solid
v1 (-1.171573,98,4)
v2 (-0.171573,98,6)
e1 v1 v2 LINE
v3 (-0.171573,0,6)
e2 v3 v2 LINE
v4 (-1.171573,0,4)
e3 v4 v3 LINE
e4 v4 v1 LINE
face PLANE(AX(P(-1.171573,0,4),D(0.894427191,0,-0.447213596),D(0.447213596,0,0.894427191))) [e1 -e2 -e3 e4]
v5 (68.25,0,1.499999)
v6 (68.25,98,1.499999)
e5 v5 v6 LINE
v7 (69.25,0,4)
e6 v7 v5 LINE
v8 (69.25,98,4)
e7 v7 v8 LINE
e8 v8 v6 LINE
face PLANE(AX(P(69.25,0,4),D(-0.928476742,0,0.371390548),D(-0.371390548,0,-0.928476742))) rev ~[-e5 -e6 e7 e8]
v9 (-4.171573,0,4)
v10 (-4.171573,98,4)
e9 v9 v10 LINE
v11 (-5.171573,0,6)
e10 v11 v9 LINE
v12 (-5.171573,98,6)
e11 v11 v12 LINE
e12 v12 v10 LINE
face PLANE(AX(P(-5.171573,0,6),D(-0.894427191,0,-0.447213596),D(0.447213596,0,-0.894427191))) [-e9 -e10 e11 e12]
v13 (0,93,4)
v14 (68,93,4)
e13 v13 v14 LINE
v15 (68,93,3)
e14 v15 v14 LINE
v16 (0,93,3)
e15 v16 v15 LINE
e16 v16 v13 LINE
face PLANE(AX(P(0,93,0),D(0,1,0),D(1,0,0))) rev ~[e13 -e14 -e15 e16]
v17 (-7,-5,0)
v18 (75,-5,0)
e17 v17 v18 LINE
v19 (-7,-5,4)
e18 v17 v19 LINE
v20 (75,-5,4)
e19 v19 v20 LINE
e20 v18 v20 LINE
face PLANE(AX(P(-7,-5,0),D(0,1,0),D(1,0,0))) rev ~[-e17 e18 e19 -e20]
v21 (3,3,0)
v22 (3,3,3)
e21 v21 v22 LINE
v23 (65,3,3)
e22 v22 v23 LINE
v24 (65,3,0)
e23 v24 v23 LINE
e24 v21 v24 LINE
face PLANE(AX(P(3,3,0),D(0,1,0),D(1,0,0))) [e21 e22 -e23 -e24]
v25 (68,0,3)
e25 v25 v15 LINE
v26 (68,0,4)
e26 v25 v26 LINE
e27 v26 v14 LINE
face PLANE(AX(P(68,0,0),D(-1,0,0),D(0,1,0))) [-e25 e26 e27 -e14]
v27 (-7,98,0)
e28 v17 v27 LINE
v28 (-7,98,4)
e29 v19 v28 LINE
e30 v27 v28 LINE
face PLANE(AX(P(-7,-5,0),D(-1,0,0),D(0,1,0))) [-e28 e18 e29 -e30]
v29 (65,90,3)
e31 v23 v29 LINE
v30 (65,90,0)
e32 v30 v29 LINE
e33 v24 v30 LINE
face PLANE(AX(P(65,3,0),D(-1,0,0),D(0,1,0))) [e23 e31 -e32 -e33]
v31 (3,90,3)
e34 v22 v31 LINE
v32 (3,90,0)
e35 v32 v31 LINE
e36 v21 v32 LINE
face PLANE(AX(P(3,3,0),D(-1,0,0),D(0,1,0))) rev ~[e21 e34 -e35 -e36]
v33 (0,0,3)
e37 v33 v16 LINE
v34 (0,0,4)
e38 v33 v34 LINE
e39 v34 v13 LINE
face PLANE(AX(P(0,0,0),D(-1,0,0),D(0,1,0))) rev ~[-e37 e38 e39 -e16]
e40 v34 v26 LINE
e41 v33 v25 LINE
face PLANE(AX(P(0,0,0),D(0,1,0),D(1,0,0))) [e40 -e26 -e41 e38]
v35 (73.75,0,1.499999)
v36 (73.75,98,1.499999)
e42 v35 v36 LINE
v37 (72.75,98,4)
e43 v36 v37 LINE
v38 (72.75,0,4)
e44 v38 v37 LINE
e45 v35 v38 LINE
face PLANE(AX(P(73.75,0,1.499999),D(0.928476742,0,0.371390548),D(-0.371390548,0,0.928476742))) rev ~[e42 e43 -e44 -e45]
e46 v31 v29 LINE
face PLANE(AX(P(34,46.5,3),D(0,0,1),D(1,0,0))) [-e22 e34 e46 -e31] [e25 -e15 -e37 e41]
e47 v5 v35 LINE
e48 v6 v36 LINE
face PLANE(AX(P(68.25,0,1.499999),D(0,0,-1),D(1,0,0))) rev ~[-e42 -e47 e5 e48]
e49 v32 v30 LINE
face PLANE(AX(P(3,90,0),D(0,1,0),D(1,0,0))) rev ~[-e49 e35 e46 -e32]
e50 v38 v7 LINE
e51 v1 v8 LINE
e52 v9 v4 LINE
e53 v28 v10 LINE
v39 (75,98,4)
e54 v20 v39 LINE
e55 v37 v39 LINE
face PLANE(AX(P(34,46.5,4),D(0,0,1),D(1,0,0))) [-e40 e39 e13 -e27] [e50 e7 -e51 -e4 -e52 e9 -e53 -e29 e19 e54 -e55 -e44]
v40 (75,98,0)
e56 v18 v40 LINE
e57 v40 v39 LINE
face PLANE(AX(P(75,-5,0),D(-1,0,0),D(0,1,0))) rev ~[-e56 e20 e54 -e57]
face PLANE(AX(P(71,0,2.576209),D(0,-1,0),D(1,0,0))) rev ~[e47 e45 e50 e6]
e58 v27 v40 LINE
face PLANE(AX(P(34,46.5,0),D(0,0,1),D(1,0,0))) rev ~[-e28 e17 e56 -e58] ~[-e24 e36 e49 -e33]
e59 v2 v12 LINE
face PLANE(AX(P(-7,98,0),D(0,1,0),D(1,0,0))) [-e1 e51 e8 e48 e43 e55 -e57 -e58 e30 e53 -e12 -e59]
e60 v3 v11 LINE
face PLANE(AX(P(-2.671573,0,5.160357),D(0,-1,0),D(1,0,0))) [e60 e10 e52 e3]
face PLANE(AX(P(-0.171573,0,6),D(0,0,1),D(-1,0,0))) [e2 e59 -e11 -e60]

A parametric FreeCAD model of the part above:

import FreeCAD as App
import Part
import Sketcher
from FreeCAD import Vector
Q = App.Units.Quantity

doc = App.newDocument("Part")
body = doc.addObject("PartDesign::Body", "Body")

sketch1 = doc.addObject("Sketcher::SketchObject", "Sketch")
body.addObject(sketch1)
sketch1.AttachmentSupport = (doc.XY_Plane, [""])
sketch1.MapMode = "FlatFace"
sketch1.addGeometry(Part.LineSegment(Vector(0, 93, 0), Vector(0, 0, 0)), False)
sketch1.addGeometry(Part.LineSegment(Vector(0, 0, 0), Vector(68, 0, 0)), False)
sketch1.addGeometry(Part.LineSegment(Vector(68, 0, 0), Vector(68, 93, 0)), False)
sketch1.addGeometry(Part.LineSegment(Vector(68, 93, 0), Vector(0, 93, 0)), False)
sketch1.addGeometry(Part.LineSegment(Vector(65, 3, 0), Vector(3, 3, 0)), False)
sketch1.addGeometry(Part.LineSegment(Vector(3, 3, 0), Vector(3, 90, 0)), False)
sketch1.addGeometry(Part.LineSegment(Vector(3, 90, 0), Vector(65, 90, 0)), False)
sketch1.addGeometry(Part.LineSegment(Vector(65, 90, 0), Vector(65, 3, 0)), False)
sketch1.addConstraint(Sketcher.Constraint("Coincident", 0, 2, 1, 1))
sketch1.addConstraint(Sketcher.Constraint("Coincident", 1, 2, 2, 1))
sketch1.addConstraint(Sketcher.Constraint("Coincident", 2, 2, 3, 1))
sketch1.addConstraint(Sketcher.Constraint("Coincident", 3, 2, 0, 1))
sketch1.addConstraint(Sketcher.Constraint("Coincident", 4, 2, 5, 1))
sketch1.addConstraint(Sketcher.Constraint("Coincident", 5, 2, 6, 1))
sketch1.addConstraint(Sketcher.Constraint("Coincident", 6, 2, 7, 1))
sketch1.addConstraint(Sketcher.Constraint("Coincident", 7, 2, 4, 1))
sketch1.addConstraint(Sketcher.Constraint("Vertical", 0))
sketch1.addConstraint(Sketcher.Constraint("Horizontal", 1))
sketch1.addConstraint(Sketcher.Constraint("Vertical", 2))
sketch1.addConstraint(Sketcher.Constraint("Horizontal", 3))
sketch1.addConstraint(Sketcher.Constraint("Horizontal", 4))
sketch1.addConstraint(Sketcher.Constraint("Vertical", 5))
sketch1.addConstraint(Sketcher.Constraint("Horizontal", 6))
sketch1.addConstraint(Sketcher.Constraint("Vertical", 7))
sketch1.addConstraint(Sketcher.Constraint("Coincident", 0, 2, -1, 1))
sketch1.addConstraint(Sketcher.Constraint("DistanceX", 1, 1, 1, 2, Q("68 mm")))
sketch1.addConstraint(Sketcher.Constraint("DistanceX", 4, 2, 4, 1, Q("62 mm")))
sketch1.addConstraint(Sketcher.Constraint("DistanceY", 0, 2, 0, 1, Q("93 mm")))
sketch1.addConstraint(Sketcher.Constraint("DistanceY", 5, 1, 5, 2, Q("87 mm")))
sketch1.addConstraint(Sketcher.Constraint("DistanceX", -1, 1, 4, 2, Q("3 mm")))
sketch1.addConstraint(Sketcher.Constraint("DistanceY", -1, 1, 4, 2, Q("3 mm")))
pad1 = doc.addObject("PartDesign::Pad", "Pad")
body.addObject(pad1)
pad1.Profile = sketch1
pad1.Length = 3

sketch2 = doc.addObject("Sketcher::SketchObject", "Sketch001")
body.addObject(sketch2)
sketch2.AttachmentSupport = (doc.XY_Plane, [""])
sketch2.MapMode = "FlatFace"
sketch2.addGeometry(Part.LineSegment(Vector(-7, 98, 0), Vector(-7, -5, 0)), False)
sketch2.addGeometry(Part.LineSegment(Vector(-7, -5, 0), Vector(75, -5, 0)), False)
sketch2.addGeometry(Part.LineSegment(Vector(75, -5, 0), Vector(75, 98, 0)), False)
sketch2.addGeometry(Part.LineSegment(Vector(75, 98, 0), Vector(-7, 98, 0)), False)
sketch2.addGeometry(Part.LineSegment(Vector(68, 0, 0), Vector(0, 0, 0)), False)
sketch2.addGeometry(Part.LineSegment(Vector(0, 0, 0), Vector(0, 93, 0)), False)
sketch2.addGeometry(Part.LineSegment(Vector(0, 93, 0), Vector(68, 93, 0)), False)
sketch2.addGeometry(Part.LineSegment(Vector(68, 93, 0), Vector(68, 0, 0)), False)
sketch2.addConstraint(Sketcher.Constraint("Coincident", 0, 2, 1, 1))
sketch2.addConstraint(Sketcher.Constraint("Coincident", 1, 2, 2, 1))
sketch2.addConstraint(Sketcher.Constraint("Coincident", 2, 2, 3, 1))
sketch2.addConstraint(Sketcher.Constraint("Coincident", 3, 2, 0, 1))
sketch2.addConstraint(Sketcher.Constraint("Coincident", 4, 2, 5, 1))
sketch2.addConstraint(Sketcher.Constraint("Coincident", 5, 2, 6, 1))
sketch2.addConstraint(Sketcher.Constraint("Coincident", 6, 2, 7, 1))
sketch2.addConstraint(Sketcher.Constraint("Coincident", 7, 2, 4, 1))
sketch2.addConstraint(Sketcher.Constraint("Vertical", 0))
sketch2.addConstraint(Sketcher.Constraint("Horizontal", 1))
sketch2.addConstraint(Sketcher.Constraint("Vertical", 2))
sketch2.addConstraint(Sketcher.Constraint("Horizontal", 3))
sketch2.addConstraint(Sketcher.Constraint("Horizontal", 4))
sketch2.addConstraint(Sketcher.Constraint("Vertical", 5))
sketch2.addConstraint(Sketcher.Constraint("Horizontal", 6))
sketch2.addConstraint(Sketcher.Constraint("Vertical", 7))
sketch2.addConstraint(Sketcher.Constraint("Coincident", 4, 2, -1, 1))
sketch2.addConstraint(Sketcher.Constraint("DistanceX", 1, 1, 1, 2, Q("82 mm")))
sketch2.addConstraint(Sketcher.Constraint("DistanceX", 4, 2, 4, 1, Q("68 mm")))
sketch2.addConstraint(Sketcher.Constraint("DistanceY", 0, 2, 0, 1, Q("103 mm")))
sketch2.addConstraint(Sketcher.Constraint("DistanceY", 5, 1, 5, 2, Q("93 mm")))
sketch2.addConstraint(Sketcher.Constraint("DistanceX", 0, 2, -1, 1, Q("7 mm")))
sketch2.addConstraint(Sketcher.Constraint("DistanceY", 0, 2, -1, 1, Q("5 mm")))
pad2 = doc.addObject("PartDesign::Pad", "Pad001")
body.addObject(pad2)
pad2.Profile = sketch2
pad2.Length = 4

sketch3 = doc.addObject("Sketcher::SketchObject", "Sketch002")
body.addObject(sketch3)
sketch3.AttachmentSupport = (doc.XZ_Plane, [""])
sketch3.MapMode = "FlatFace"
sketch3.addGeometry(Part.LineSegment(Vector(-5.2, 6, 0), Vector(-4.2, 4, 0)), False)
sketch3.addGeometry(Part.LineSegment(Vector(-4.2, 4, 0), Vector(-1.2, 4, 0)), False)
sketch3.addGeometry(Part.LineSegment(Vector(-1.2, 4, 0), Vector(-0.2, 6, 0)), False)
sketch3.addGeometry(Part.LineSegment(Vector(-0.2, 6, 0), Vector(-5.2, 6, 0)), False)
sketch3.addConstraint(Sketcher.Constraint("Coincident", 0, 2, 1, 1))
sketch3.addConstraint(Sketcher.Constraint("Coincident", 1, 2, 2, 1))
sketch3.addConstraint(Sketcher.Constraint("Coincident", 2, 2, 3, 1))
sketch3.addConstraint(Sketcher.Constraint("Coincident", 3, 2, 0, 1))
sketch3.addConstraint(Sketcher.Constraint("Horizontal", 1))
sketch3.addConstraint(Sketcher.Constraint("Horizontal", 3))
sketch3.addConstraint(Sketcher.Constraint("Equal", 0, 2))
sketch3.addConstraint(Sketcher.Constraint("DistanceX", 1, 1, 1, 2, Q("3 mm")))
sketch3.addConstraint(Sketcher.Constraint("DistanceX", 3, 2, 3, 1, Q("5 mm")))
sketch3.addConstraint(Sketcher.Constraint("DistanceY", -1, 1, 0, 2, Q("4 mm")))
sketch3.addConstraint(Sketcher.Constraint("DistanceY", -1, 1, 2, 2, Q("6 mm")))
sketch3.addConstraint(Sketcher.Constraint("DistanceX", 0, 2, -1, 1, Q("4.171573 mm")))
pad3 = doc.addObject("PartDesign::Pad", "Pad002")
body.addObject(pad3)
pad3.Profile = sketch3
pad3.Length = 98
pad3.Reversed = True

sketch4 = doc.addObject("Sketcher::SketchObject", "Sketch003")
body.addObject(sketch4)
sketch4.AttachmentSupport = (doc.XZ_Plane, [""])
sketch4.MapMode = "FlatFace"
sketch4.addGeometry(Part.LineSegment(Vector(72.8, 4, 0), Vector(69.2, 4, 0)), False)
sketch4.addGeometry(Part.LineSegment(Vector(69.2, 4, 0), Vector(68.2, 1.5, 0)), False)
sketch4.addGeometry(Part.LineSegment(Vector(68.2, 1.5, 0), Vector(73.8, 1.5, 0)), False)
sketch4.addGeometry(Part.LineSegment(Vector(73.8, 1.5, 0), Vector(72.8, 4, 0)), False)
sketch4.addConstraint(Sketcher.Constraint("Coincident", 0, 2, 1, 1))
sketch4.addConstraint(Sketcher.Constraint("Coincident", 1, 2, 2, 1))
sketch4.addConstraint(Sketcher.Constraint("Coincident", 2, 2, 3, 1))
sketch4.addConstraint(Sketcher.Constraint("Coincident", 3, 2, 0, 1))
sketch4.addConstraint(Sketcher.Constraint("Horizontal", 0))
sketch4.addConstraint(Sketcher.Constraint("Horizontal", 2))
sketch4.addConstraint(Sketcher.Constraint("Equal", 1, 3))
sketch4.addConstraint(Sketcher.Constraint("DistanceX", 0, 2, 0, 1, Q("3.5 mm")))
sketch4.addConstraint(Sketcher.Constraint("DistanceX", 2, 1, 2, 2, Q("5.5 mm")))
sketch4.addConstraint(Sketcher.Constraint("DistanceY", -1, 1, 0, 2, Q("4 mm")))
sketch4.addConstraint(Sketcher.Constraint("DistanceY", -1, 1, 1, 2, Q("1.499999 mm")))
sketch4.addConstraint(Sketcher.Constraint("DistanceX", -1, 1, 0, 2, Q("69.25 mm")))
pocket1 = doc.addObject("PartDesign::Pocket", "Pocket")
body.addObject(pocket1)
pocket1.Profile = sketch4
pocket1.Length = 98

doc.recompute()
